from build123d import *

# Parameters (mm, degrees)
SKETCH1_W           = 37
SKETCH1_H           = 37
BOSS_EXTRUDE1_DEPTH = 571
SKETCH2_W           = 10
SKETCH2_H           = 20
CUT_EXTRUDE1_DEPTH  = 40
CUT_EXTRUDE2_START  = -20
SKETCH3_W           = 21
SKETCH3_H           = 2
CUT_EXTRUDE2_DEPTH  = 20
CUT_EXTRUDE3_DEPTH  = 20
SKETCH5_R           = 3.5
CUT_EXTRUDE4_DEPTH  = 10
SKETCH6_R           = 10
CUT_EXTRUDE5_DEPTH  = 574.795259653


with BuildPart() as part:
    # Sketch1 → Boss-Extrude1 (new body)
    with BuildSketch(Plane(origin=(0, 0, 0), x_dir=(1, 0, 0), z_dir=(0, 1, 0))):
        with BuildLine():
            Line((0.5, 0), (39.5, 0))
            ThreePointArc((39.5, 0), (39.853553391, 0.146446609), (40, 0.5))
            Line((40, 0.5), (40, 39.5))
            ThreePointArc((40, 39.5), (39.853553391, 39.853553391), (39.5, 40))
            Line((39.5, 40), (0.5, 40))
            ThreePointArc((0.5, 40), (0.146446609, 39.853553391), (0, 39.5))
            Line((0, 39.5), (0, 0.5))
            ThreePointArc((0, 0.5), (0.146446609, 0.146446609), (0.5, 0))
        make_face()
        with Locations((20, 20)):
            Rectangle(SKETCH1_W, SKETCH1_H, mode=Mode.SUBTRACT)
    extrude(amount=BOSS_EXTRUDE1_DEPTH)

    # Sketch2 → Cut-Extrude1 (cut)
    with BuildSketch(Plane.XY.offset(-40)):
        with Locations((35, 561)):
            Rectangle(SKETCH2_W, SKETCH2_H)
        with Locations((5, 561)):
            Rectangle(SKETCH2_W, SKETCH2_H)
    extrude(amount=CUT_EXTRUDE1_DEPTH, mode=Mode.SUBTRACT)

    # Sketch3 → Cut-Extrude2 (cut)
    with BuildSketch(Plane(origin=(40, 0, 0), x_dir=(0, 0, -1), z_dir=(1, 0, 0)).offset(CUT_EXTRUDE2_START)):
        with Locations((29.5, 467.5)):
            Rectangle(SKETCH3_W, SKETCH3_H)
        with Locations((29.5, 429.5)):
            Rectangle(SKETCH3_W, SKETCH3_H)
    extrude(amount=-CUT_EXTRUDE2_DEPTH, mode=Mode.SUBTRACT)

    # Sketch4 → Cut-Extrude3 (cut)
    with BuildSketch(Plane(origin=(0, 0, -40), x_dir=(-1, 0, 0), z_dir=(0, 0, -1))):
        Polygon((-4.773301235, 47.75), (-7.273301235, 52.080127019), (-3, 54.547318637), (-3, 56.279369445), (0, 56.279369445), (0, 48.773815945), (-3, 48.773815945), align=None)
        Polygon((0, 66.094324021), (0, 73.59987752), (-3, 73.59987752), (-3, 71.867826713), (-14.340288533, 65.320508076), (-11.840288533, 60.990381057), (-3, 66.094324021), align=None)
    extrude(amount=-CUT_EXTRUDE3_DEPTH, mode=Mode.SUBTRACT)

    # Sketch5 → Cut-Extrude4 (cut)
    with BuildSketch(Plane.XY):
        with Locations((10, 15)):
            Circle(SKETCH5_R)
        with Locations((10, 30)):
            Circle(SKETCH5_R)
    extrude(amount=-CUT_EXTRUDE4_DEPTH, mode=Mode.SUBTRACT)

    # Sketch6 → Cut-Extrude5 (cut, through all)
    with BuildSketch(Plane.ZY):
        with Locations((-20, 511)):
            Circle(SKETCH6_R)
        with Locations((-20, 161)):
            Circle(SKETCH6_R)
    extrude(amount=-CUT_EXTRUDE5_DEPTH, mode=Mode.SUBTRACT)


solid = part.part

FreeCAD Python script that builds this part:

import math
import FreeCAD as App
import Part
import Sketcher

V = App.Vector
Q = App.Units.Quantity

doc = App.newDocument("Part")
body = doc.addObject("PartDesign::Body", "Body")

# Sketch on XZ plane
sketch1 = body.newObject("Sketcher::SketchObject", "Sketch")
sketch1.AttachmentSupport = (doc.getObject("XZ_Plane"), [""])
sketch1.MapMode = "FlatFace"
sketch1.addGeometry([
    Part.LineSegment(V(0.5, 0, 0), V(39.5, 0, 0)),  # 0
    Part.ArcOfCircle(Part.Circle(V(39.5, -0.5, 0), V(0, 0, 1), 0.5), math.radians(0), math.radians(90)),  # 1
    Part.LineSegment(V(40, -0.5, 0), V(40, -39.5, 0)),  # 2
    Part.ArcOfCircle(Part.Circle(V(39.5, -39.5, 0), V(0, 0, 1), 0.5), math.radians(-90), math.radians(0)),  # 3
    Part.LineSegment(V(39.5, -40, 0), V(0.5, -40, 0)),  # 4
    Part.ArcOfCircle(Part.Circle(V(0.5, -39.5, 0), V(0, 0, 1), 0.5), math.radians(180), math.radians(270)),  # 5
    Part.LineSegment(V(0, -39.5, 0), V(0, -0.5, 0)),  # 6
    Part.ArcOfCircle(Part.Circle(V(0.5, -0.5, 0), V(0, 0, 1), 0.5), math.radians(90), math.radians(180)),  # 7
    Part.LineSegment(V(38.5, -1.5, 0), V(1.5, -1.5, 0)),  # 8
    Part.LineSegment(V(1.5, -1.5, 0), V(1.5, -38.5, 0)),  # 9
    Part.LineSegment(V(1.5, -38.5, 0), V(38.5, -38.5, 0)),  # 10
    Part.LineSegment(V(38.5, -38.5, 0), V(38.5, -1.5, 0)),  # 11
], False)
sketch1.addConstraint([
    Sketcher.Constraint("Tangent", 0, 2, 1, 2),
    Sketcher.Constraint("Tangent", 1, 1, 2, 1),
    Sketcher.Constraint("Tangent", 2, 2, 3, 2),
    Sketcher.Constraint("Tangent", 3, 1, 4, 1),
    Sketcher.Constraint("Tangent", 4, 2, 5, 2),
    Sketcher.Constraint("Tangent", 5, 1, 6, 1),
    Sketcher.Constraint("Tangent", 6, 2, 7, 2),
    Sketcher.Constraint("Tangent", 7, 1, 0, 1),
    Sketcher.Constraint("Coincident", 8, 2, 9, 1),
    Sketcher.Constraint("Coincident", 9, 2, 10, 1),
    Sketcher.Constraint("Coincident", 10, 2, 11, 1),
    Sketcher.Constraint("Coincident", 11, 2, 8, 1),
    Sketcher.Constraint("Horizontal", 0),
    Sketcher.Constraint("Vertical", 2),
    Sketcher.Constraint("Horizontal", 4),
    Sketcher.Constraint("Vertical", 6),
    Sketcher.Constraint("Horizontal", 8),
    Sketcher.Constraint("Vertical", 9),
    Sketcher.Constraint("Horizontal", 10),
    Sketcher.Constraint("Vertical", 11),
    Sketcher.Constraint("Equal", 1, 3),
    Sketcher.Constraint("Equal", 3, 5),
    Sketcher.Constraint("Equal", 5, 7),
    Sketcher.Constraint("PointOnObject", 0, 2, -1),
    Sketcher.Constraint("PointOnObject", 5, 1, -2),
    Sketcher.Constraint("Equal", 4, 2),
    Sketcher.Constraint("Equal", 10, 9),
    Sketcher.Constraint("Radius", 1, 0.5),
    Sketcher.Constraint("DistanceX", 0, 1, 0, 2, 39.0),
    Sketcher.Constraint("DistanceX", 8, 2, 8, 1, 37.0),
    Sketcher.Constraint("DistanceX", 7, 3, 8, 2, 1.0),
    Sketcher.Constraint("DistanceY", 8, 2, 7, 3, 1.0),
])
pad1 = body.newObject("PartDesign::Pad", "Pad")
pad1.Profile = sketch1
pad1.Length = 571
pad1.Reversed = True

# Sketch on XY plane
sketch2 = body.newObject("Sketcher::SketchObject", "Sketch001")
sketch2.AttachmentSupport = (doc.getObject("XY_Plane"), [""])
sketch2.MapMode = "FlatFace"
sketch2.AttachmentOffset = App.Placement(V(0, 0, -40), App.Rotation())
sketch2.addGeometry([
    Part.LineSegment(V(30, 571, 0), V(30, 551, 0)),  # 0
    Part.LineSegment(V(30, 551, 0), V(40, 551, 0)),  # 1
    Part.LineSegment(V(40, 551, 0), V(40, 571, 0)),  # 2
    Part.LineSegment(V(40, 571, 0), V(30, 571, 0)),  # 3
    Part.LineSegment(V(0, 571, 0), V(0, 551, 0)),  # 4
    Part.LineSegment(V(0, 551, 0), V(10, 551, 0)),  # 5
    Part.LineSegment(V(10, 551, 0), V(10, 571, 0)),  # 6
    Part.LineSegment(V(10, 571, 0), V(0, 571, 0)),  # 7
], False)
sketch2.addConstraint([
    Sketcher.Constraint("Coincident", 0, 2, 1, 1),
    Sketcher.Constraint("Coincident", 1, 2, 2, 1),
    Sketcher.Constraint("Coincident", 2, 2, 3, 1),
    Sketcher.Constraint("Coincident", 3, 2, 0, 1),
    Sketcher.Constraint("Coincident", 4, 2, 5, 1),
    Sketcher.Constraint("Coincident", 5, 2, 6, 1),
    Sketcher.Constraint("Coincident", 6, 2, 7, 1),
    Sketcher.Constraint("Coincident", 7, 2, 4, 1),
    Sketcher.Constraint("Vertical", 0),
    Sketcher.Constraint("Horizontal", 1),
    Sketcher.Constraint("Vertical", 2),
    Sketcher.Constraint("Horizontal", 3),
    Sketcher.Constraint("Vertical", 4),
    Sketcher.Constraint("Horizontal", 5),
    Sketcher.Constraint("Vertical", 6),
    Sketcher.Constraint("Horizontal", 7),
    Sketcher.Constraint("PointOnObject", 4, 2, -2),
    Sketcher.Constraint("Horizontal", 1, 2, 4, 2),
    Sketcher.Constraint("Horizontal", 3, 2, 6, 2),
    Sketcher.Constraint("Equal", 3, 5),
    Sketcher.Constraint("DistanceX", 1, 1, 1, 2, 10.0),
    Sketcher.Constraint("DistanceY", 0, 2, 0, 1, 20.0),
    Sketcher.Constraint("DistanceX", -1, 1, 0, 2, 30.0),
    Sketcher.Constraint("DistanceY", -1, 1, 0, 2, 551.0),
])
pocket1 = body.newObject("PartDesign::Pocket", "Pocket")
pocket1.Profile = sketch2
pocket1.Length = 40
pocket1.Reversed = True

# Sketch on YZ plane
sketch3 = body.newObject("Sketcher::SketchObject", "Sketch002")
sketch3.AttachmentSupport = (doc.getObject("YZ_Plane"), [""])
sketch3.MapMode = "FlatFace"
sketch3.AttachmentOffset = App.Placement(V(0, 0, 20), App.Rotation())
sketch3.addGeometry([
    Part.LineSegment(V(468.5, -19, 0), V(466.5, -19, 0)),  # 0
    Part.LineSegment(V(466.5, -19, 0), V(466.5, -40, 0)),  # 1
    Part.LineSegment(V(466.5, -40, 0), V(468.5, -40, 0)),  # 2
    Part.LineSegment(V(468.5, -40, 0), V(468.5, -19, 0)),  # 3
    Part.LineSegment(V(430.5, -19, 0), V(428.5, -19, 0)),  # 4
    Part.LineSegment(V(428.5, -19, 0), V(428.5, -40, 0)),  # 5
    Part.LineSegment(V(428.5, -40, 0), V(430.5, -40, 0)),  # 6
    Part.LineSegment(V(430.5, -40, 0), V(430.5, -19, 0)),  # 7
], False)
sketch3.addConstraint([
    Sketcher.Constraint("Coincident", 0, 2, 1, 1),
    Sketcher.Constraint("Coincident", 1, 2, 2, 1),
    Sketcher.Constraint("Coincident", 2, 2, 3, 1),
    Sketcher.Constraint("Coincident", 3, 2, 0, 1),
    Sketcher.Constraint("Coincident", 4, 2, 5, 1),
    Sketcher.Constraint("Coincident", 5, 2, 6, 1),
    Sketcher.Constraint("Coincident", 6, 2, 7, 1),
    Sketcher.Constraint("Coincident", 7, 2, 4, 1),
    Sketcher.Constraint("Horizontal", 0),
    Sketcher.Constraint("Vertical", 1),
    Sketcher.Constraint("Horizontal", 2),
    Sketcher.Constraint("Vertical", 3),
    Sketcher.Constraint("Horizontal", 4),
    Sketcher.Constraint("Vertical", 5),
    Sketcher.Constraint("Horizontal", 6),
    Sketcher.Constraint("Vertical", 7),
    Sketcher.Constraint("Horizontal", 3, 2, 4, 2),
    Sketcher.Constraint("Horizontal", 2, 2, 5, 2),
    Sketcher.Constraint("Equal", 2, 4),
    Sketcher.Constraint("DistanceX", 0, 2, 0, 1, 2.0),
    Sketcher.Constraint("DistanceY", 1, 2, 1, 1, 21.0),
    Sketcher.Constraint("DistanceY", 0, 2, -1, 1, 19.0),
    Sketcher.Constraint("DistanceX", 4, 2, 0, 2, 38.0),
    Sketcher.Constraint("DistanceX", -1, 1, 0, 2, 466.5),
])
pocket2 = body.newObject("PartDesign::Pocket", "Pocket001")
pocket2.Profile = sketch3
pocket2.Length = 20

# Sketch on XY plane
sketch4 = body.newObject("Sketcher::SketchObject", "Sketch003")
sketch4.AttachmentSupport = (doc.getObject("XY_Plane"), [""])
sketch4.MapMode = "FlatFace"
sketch4.AttachmentOffset = App.Placement(V(0, 0, -40), App.Rotation())
sketch4.addGeometry([
    Part.LineSegment(V(7.3, 52.1, 0), V(4.8, 47.8, 0)),  # 0
    Part.LineSegment(V(4.8, 47.8, 0), V(3, 48.8, 0)),  # 1
    Part.LineSegment(V(3, 48.8, 0), V(0, 48.8, 0)),  # 2
    Part.LineSegment(V(0, 48.8, 0), V(0, 56.3, 0)),  # 3
    Part.LineSegment(V(0, 56.3, 0), V(3, 56.3, 0)),  # 4
    Part.LineSegment(V(3, 56.3, 0), V(3, 54.5, 0)),  # 5
    Part.LineSegment(V(3, 54.5, 0), V(7.3, 52.1, 0)),  # 6
    Part.LineSegment(V(0, 66.1, 0), V(0, 73.6, 0)),  # 7
    Part.LineSegment(V(0, 73.6, 0), V(3, 73.6, 0)),  # 8
    Part.LineSegment(V(3, 73.6, 0), V(3, 71.9, 0)),  # 9
    Part.LineSegment(V(3, 71.9, 0), V(14.3, 65.3, 0)),  # 10
    Part.LineSegment(V(14.3, 65.3, 0), V(11.8, 61, 0)),  # 11
    Part.LineSegment(V(11.8, 61, 0), V(3, 66.1, 0)),  # 12
    Part.LineSegment(V(3, 66.1, 0), V(0, 66.1, 0)),  # 13
], False)
sketch4.addConstraint([
    Sketcher.Constraint("Coincident", 0, 2, 1, 1),
    Sketcher.Constraint("Coincident", 1, 2, 2, 1),
    Sketcher.Constraint("Coincident", 2, 2, 3, 1),
    Sketcher.Constraint("Coincident", 3, 2, 4, 1),
    Sketcher.Constraint("Coincident", 4, 2, 5, 1),
    Sketcher.Constraint("Coincident", 5, 2, 6, 1),
    Sketcher.Constraint("Coincident", 6, 2, 0, 1),
    Sketcher.Constraint("Coincident", 7, 2, 8, 1),
    Sketcher.Constraint("Coincident", 8, 2, 9, 1),
    Sketcher.Constraint("Coincident", 9, 2, 10, 1),
    Sketcher.Constraint("Coincident", 10, 2, 11, 1),
    Sketcher.Constraint("Coincident", 11, 2, 12, 1),
    Sketcher.Constraint("Coincident", 12, 2, 13, 1),
    Sketcher.Constraint("Coincident", 13, 2, 7, 1),
    Sketcher.Constraint("Horizontal", 2),
    Sketcher.Constraint("Vertical", 3),
    Sketcher.Constraint("Horizontal", 4),
    Sketcher.Constraint("Vertical", 5),
    Sketcher.Constraint("Vertical", 7),
    Sketcher.Constraint("Horizontal", 8),
    Sketcher.Constraint("Vertical", 9),
    Sketcher.Constraint("Horizontal", 13),
    Sketcher.Constraint("PointOnObject", 2, 2, -2),
    Sketcher.Constraint("PointOnObject", 7, 2, -2),
    Sketcher.Constraint("Perpendicular", 0, 1),
    Sketcher.Constraint("Parallel", 1, 6),
    Sketcher.Constraint("Parallel", 6, 10),
    Sketcher.Constraint("Perpendicular", 10, 11),
    Sketcher.Constraint("Perpendicular", 11, 12),
    Sketcher.Constraint("Vertical", 1, 2, 4, 2),
    Sketcher.Constraint("Vertical", 5, 2, 8, 2),
    Sketcher.Constraint("Vertical", 9, 2, 12, 2),
    Sketcher.Constraint("Equal", 3, 7),
    Sketcher.Constraint("Equal", 5, 9),
    Sketcher.Constraint("DistanceX", 2, 2, 2, 1, 3.0),
    Sketcher.Constraint("Angle", 0, Q("-120 deg")),
    Sketcher.Constraint("Distance", 0, 5.0),
    Sketcher.Constraint("DistanceY", -1, 1, 0, 2, 47.75),
    Sketcher.Constraint("DistanceY", 5, 2, 5, 1, 1.732051),
    Sketcher.Constraint("DistanceX", -1, 1, 0, 2, 4.773301),
    Sketcher.Constraint("DistanceX", -1, 1, 10, 2, 14.340289),
    Sketcher.Constraint("DistanceY", -1, 1, 10, 2, 65.320508),
])
pocket3 = body.newObject("PartDesign::Pocket", "Pocket002")
pocket3.Profile = sketch4
pocket3.Length = 20
pocket3.Reversed = True

# Sketch on XY plane
sketch5 = body.newObject("Sketcher::SketchObject", "Sketch004")
sketch5.AttachmentSupport = (doc.getObject("XY_Plane"), [""])
sketch5.MapMode = "FlatFace"
sketch5.addGeometry([
    Part.Circle(V(10, 15, 0), V(0, 0, 1), 3.5),
    Part.Circle(V(10, 30, 0), V(0, 0, 1), 3.5),
], False)
sketch5.addConstraint([
    Sketcher.Constraint("Equal", 0, 1),
    Sketcher.Constraint("Vertical", 0, 3, 1, 3),
    Sketcher.Constraint("Diameter", 0, 7.0),
    Sketcher.Constraint("DistanceX", -1, 1, 0, 3, 10.0),
    Sketcher.Constraint("DistanceY", -1, 1, 0, 3, 15.0),
    Sketcher.Constraint("DistanceY", -1, 1, 1, 3, 30.0),
])
pocket4 = body.newObject("PartDesign::Pocket", "Pocket003")
pocket4.Profile = sketch5
pocket4.Length = 10

# Sketch on YZ plane
sketch6 = body.newObject("Sketcher::SketchObject", "Sketch005")
sketch6.AttachmentSupport = (doc.getObject("YZ_Plane"), [""])
sketch6.MapMode = "FlatFace"
sketch6.addGeometry([
    Part.Circle(V(511, -20, 0), V(0, 0, 1), 10),
    Part.Circle(V(161, -20, 0), V(0, 0, 1), 10),
], False)
sketch6.addConstraint([
    Sketcher.Constraint("Equal", 0, 1),
    Sketcher.Constraint("Horizontal", 0, 3, 1, 3),
    Sketcher.Constraint("Diameter", 0, 20.0),
    Sketcher.Constraint("DistanceX", -1, 1, 0, 3, 511.0),
    Sketcher.Constraint("DistanceY", 0, 3, -1, 1, 20.0),
    Sketcher.Constraint("DistanceX", -1, 1, 1, 3, 161.0),
])
pocket5 = body.newObject("PartDesign::Pocket", "Pocket004")
pocket5.Profile = sketch6
pocket5.Type = "ThroughAll"
pocket5.Reversed = True

doc.recompute()
